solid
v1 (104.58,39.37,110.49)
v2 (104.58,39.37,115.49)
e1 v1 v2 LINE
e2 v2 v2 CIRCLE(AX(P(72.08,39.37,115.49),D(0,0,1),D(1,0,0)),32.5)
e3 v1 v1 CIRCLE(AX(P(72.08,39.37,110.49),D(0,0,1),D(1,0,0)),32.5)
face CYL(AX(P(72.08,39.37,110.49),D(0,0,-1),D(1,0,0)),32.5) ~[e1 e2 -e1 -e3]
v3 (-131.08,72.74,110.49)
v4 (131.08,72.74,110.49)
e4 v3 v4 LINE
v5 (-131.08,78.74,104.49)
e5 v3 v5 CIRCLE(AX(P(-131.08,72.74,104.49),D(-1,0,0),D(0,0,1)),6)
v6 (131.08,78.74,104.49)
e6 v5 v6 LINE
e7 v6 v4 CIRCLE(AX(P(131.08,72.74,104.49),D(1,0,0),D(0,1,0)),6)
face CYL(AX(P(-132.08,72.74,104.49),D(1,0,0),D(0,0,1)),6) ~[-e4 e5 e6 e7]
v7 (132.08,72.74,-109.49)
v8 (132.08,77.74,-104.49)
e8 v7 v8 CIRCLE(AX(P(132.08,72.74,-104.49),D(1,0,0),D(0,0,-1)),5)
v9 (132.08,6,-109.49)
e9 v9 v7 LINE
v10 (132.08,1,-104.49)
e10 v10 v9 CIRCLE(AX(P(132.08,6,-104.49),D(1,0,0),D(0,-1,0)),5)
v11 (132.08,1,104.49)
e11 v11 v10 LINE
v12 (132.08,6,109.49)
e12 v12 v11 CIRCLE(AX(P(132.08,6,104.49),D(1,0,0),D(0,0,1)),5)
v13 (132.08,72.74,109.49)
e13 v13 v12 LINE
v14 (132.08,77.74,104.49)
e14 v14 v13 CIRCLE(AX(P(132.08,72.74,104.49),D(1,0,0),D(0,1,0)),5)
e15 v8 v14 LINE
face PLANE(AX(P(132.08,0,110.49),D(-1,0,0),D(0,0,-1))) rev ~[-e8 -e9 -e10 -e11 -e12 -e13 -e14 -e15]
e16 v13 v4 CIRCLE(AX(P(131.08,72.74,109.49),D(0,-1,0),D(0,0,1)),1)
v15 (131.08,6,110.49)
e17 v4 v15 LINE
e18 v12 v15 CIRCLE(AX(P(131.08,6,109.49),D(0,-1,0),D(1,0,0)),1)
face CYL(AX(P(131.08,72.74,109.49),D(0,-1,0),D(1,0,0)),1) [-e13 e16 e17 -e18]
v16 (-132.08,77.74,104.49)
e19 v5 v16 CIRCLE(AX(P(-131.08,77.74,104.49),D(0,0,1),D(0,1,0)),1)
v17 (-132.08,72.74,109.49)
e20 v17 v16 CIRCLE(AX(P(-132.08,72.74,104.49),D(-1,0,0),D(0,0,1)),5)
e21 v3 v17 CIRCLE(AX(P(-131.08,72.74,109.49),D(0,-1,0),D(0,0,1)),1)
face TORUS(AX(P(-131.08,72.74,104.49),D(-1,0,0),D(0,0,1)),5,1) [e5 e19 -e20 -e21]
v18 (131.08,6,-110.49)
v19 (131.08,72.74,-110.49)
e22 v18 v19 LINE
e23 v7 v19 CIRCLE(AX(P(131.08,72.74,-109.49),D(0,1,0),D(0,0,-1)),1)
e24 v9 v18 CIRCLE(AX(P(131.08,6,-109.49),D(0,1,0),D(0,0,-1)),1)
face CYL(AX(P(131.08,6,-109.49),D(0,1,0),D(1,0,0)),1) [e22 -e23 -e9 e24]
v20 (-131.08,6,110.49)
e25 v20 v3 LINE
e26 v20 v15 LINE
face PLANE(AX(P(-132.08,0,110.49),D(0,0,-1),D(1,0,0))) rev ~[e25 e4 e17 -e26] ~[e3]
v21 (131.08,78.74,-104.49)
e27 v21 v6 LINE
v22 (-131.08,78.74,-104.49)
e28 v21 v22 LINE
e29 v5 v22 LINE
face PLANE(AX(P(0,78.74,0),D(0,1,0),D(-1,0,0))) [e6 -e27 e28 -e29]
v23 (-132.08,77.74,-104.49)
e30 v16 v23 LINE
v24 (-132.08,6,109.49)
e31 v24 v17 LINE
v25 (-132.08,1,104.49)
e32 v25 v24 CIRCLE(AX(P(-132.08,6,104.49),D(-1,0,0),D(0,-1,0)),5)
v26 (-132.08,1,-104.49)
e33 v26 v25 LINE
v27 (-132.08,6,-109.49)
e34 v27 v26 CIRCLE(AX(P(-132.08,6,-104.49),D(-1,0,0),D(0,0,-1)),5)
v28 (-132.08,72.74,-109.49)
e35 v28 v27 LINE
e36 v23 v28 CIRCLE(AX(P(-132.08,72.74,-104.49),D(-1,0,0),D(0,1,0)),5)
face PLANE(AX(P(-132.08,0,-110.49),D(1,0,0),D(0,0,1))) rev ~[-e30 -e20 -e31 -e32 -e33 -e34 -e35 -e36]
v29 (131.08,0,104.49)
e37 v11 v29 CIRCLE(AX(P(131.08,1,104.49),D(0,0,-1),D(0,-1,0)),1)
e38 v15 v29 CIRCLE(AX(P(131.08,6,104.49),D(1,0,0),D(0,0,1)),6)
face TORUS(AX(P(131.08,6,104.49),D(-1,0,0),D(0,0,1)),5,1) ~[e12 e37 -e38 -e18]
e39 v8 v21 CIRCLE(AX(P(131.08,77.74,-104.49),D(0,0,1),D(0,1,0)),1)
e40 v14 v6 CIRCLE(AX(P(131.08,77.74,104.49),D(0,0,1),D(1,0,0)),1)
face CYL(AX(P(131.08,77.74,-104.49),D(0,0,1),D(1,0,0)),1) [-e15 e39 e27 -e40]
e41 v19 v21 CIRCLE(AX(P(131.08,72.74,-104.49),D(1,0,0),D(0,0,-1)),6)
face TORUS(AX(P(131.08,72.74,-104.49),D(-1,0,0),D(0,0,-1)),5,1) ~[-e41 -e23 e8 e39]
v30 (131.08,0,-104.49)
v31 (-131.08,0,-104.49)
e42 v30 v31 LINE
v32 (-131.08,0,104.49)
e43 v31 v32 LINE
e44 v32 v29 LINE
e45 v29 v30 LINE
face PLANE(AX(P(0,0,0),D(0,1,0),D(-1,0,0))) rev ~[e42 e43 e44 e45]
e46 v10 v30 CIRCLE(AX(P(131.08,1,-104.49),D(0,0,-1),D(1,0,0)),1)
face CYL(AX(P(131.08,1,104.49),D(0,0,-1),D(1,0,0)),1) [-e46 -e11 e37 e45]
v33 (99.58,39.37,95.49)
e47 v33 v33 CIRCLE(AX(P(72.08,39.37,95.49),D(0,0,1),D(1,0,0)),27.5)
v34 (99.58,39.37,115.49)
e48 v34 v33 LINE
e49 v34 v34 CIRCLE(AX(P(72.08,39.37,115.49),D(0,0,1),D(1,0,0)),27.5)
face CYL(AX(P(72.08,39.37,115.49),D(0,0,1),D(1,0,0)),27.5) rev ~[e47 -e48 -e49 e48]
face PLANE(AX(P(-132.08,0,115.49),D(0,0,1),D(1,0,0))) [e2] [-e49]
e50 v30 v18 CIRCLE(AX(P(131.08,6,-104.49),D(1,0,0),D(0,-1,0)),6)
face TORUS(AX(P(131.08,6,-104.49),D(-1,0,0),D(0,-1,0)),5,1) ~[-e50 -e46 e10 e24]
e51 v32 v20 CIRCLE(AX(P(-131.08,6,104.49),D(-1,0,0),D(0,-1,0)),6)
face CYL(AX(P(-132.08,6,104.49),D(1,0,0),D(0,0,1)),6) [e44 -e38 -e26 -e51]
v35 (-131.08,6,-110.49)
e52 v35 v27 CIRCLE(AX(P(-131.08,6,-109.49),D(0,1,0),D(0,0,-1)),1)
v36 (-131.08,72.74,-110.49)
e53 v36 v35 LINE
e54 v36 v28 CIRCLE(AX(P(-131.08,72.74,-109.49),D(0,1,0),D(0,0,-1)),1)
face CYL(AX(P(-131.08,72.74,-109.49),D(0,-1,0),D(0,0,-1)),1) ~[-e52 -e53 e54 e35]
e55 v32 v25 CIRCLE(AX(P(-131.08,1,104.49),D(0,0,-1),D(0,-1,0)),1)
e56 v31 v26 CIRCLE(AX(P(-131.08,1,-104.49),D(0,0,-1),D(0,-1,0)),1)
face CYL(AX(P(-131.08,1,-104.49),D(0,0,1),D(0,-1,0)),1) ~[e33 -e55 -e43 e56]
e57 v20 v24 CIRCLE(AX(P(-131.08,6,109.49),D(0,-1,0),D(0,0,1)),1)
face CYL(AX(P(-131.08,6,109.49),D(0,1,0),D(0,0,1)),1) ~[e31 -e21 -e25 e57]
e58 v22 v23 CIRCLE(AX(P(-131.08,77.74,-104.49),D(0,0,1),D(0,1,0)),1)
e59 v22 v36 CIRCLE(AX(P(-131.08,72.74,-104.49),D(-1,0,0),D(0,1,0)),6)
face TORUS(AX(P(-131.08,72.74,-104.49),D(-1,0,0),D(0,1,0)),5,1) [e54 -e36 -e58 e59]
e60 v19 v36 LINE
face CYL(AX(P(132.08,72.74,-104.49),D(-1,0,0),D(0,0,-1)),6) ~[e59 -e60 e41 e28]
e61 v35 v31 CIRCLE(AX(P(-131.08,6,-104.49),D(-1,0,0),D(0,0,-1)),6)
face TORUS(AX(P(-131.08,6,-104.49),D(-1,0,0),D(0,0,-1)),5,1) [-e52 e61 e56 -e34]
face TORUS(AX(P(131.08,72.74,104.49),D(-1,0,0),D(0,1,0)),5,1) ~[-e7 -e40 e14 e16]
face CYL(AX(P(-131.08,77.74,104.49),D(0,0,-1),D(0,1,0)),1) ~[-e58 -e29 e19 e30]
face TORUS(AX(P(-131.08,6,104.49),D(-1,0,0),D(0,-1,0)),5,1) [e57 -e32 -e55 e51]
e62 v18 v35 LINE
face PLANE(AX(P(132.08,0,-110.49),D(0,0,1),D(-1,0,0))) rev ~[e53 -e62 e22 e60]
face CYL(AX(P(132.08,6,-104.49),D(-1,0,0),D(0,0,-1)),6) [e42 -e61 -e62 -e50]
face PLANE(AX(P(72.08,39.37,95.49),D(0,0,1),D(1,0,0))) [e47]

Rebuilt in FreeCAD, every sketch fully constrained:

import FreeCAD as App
import Part
import Sketcher


def edges_at(feature, points):
    """Names of the edges that pass closest to the given points."""
    edges = feature.Shape.Edges
    near = lambda p: min(range(len(edges)), key=lambda i: edges[i].distToShape(Part.Vertex(*p))[0])
    return sorted({f"Edge{near(p) + 1}" for p in points})

doc = App.newDocument("Part")
body = doc.addObject("PartDesign::Body", "Body")

sketch1 = body.newObject("Sketcher::SketchObject", "Sketch")
sketch1.AttachmentSupport = (doc.getObject("XZ_Plane"), [""])
sketch1.MapMode = "FlatFace"
sketch1.addGeometry([
    Part.LineSegment(App.Vector(132, 110, 0), App.Vector(132, -110, 0)),
    Part.LineSegment(App.Vector(132, -110, 0), App.Vector(-132, -110, 0)),
    Part.LineSegment(App.Vector(-132, -110, 0), App.Vector(-132, 110, 0)),
    Part.LineSegment(App.Vector(-132, 110, 0), App.Vector(132, 110, 0)),
], False)
sketch1.addConstraint([
    Sketcher.Constraint("Coincident", 0, 2, 1, 1),
    Sketcher.Constraint("Coincident", 1, 2, 2, 1),
    Sketcher.Constraint("Coincident", 2, 2, 3, 1),
    Sketcher.Constraint("Coincident", 3, 2, 0, 1),
    Sketcher.Constraint("Vertical", 0),
    Sketcher.Constraint("Horizontal", 1),
    Sketcher.Constraint("Vertical", 2),
    Sketcher.Constraint("Horizontal", 3),
    Sketcher.Constraint("Symmetric", 0, 2, 2, 2, -1, 1),
    Sketcher.Constraint("DistanceX", 1, 2, 1, 1, 264.16),
    Sketcher.Constraint("DistanceY", 0, 2, 0, 1, 220.98),
])
pad1 = body.newObject("PartDesign::Pad", "Pad")
pad1.Profile = sketch1
pad1.Length = 78.74
pad1.Reversed = True

sketch2 = body.newObject("Sketcher::SketchObject", "Sketch001")
sketch2.AttachmentSupport = (doc.getObject("XY_Plane"), [""])
sketch2.MapMode = "FlatFace"
sketch2.AttachmentOffset = App.Placement(App.Vector(0, 0, 110.49), App.Rotation())
sketch2.addGeometry(Part.Circle(App.Vector(72, 39, 0), App.Vector(0, 0, 1), 32), False)
sketch2.addConstraint([
    Sketcher.Constraint("Diameter", 0, 65.0),
    Sketcher.Constraint("DistanceY", -1, 1, 0, 3, 39.37),
    Sketcher.Constraint("DistanceX", -1, 1, 0, 3, 72.08),
])
pad2 = body.newObject("PartDesign::Pad", "Pad001")
pad2.Profile = sketch2
pad2.Length = 5

sketch3 = body.newObject("Sketcher::SketchObject", "Sketch002")
sketch3.AttachmentSupport = (doc.getObject("XY_Plane"), [""])
sketch3.MapMode = "FlatFace"
sketch3.AttachmentOffset = App.Placement(App.Vector(0, 0, 115.49), App.Rotation())
sketch3.addGeometry(Part.Circle(App.Vector(72, 39, 0), App.Vector(0, 0, 1), 28), False)
sketch3.addConstraint([
    Sketcher.Constraint("Diameter", 0, 55.0),
    Sketcher.Constraint("DistanceX", -1, 1, 0, 3, 72.08),
    Sketcher.Constraint("DistanceY", -1, 1, 0, 3, 39.37),
])
pocket1 = body.newObject("PartDesign::Pocket", "Pocket")
pocket1.Profile = sketch3
pocket1.Length = 20
doc.recompute()

fillet = body.newObject("PartDesign::Fillet", "Fillet")
fillet.Base = (pocket1, edges_at(pocket1, [
    (0, 78.74, 110.49),
    (0, 78.74, -110.49),
    (0, 0, -110.49),
    (0, 0, 110.49),
]))
fillet.Radius = 6
doc.recompute()

fillet2 = body.newObject("PartDesign::Fillet", "Fillet001")
fillet2.Base = (fillet, edges_at(fillet, [
    (-132.08, 76.983, 108.733),
    (-132.08, 78.74, 0),
    (-132.08, 76.983, -108.733),
    (-132.08, 39.37, -110.49),
    (-132.08, 1.757, -108.733),
    (-132.08, 0, 0),
    (-132.08, 1.757, 108.733),
    (-132.08, 39.37, 110.49),
    (132.08, 76.983, -108.733),
    (132.08, 39.37, -110.49),
    (132.08, 1.757, -108.733),
    (132.08, 0, 0),
    (132.08, 1.757, 108.733),
    (132.08, 39.37, 110.49),
    (132.08, 76.983, 108.733),
    (132.08, 78.74, 0),
]))
fillet2.Radius = 1

doc.recompute()
